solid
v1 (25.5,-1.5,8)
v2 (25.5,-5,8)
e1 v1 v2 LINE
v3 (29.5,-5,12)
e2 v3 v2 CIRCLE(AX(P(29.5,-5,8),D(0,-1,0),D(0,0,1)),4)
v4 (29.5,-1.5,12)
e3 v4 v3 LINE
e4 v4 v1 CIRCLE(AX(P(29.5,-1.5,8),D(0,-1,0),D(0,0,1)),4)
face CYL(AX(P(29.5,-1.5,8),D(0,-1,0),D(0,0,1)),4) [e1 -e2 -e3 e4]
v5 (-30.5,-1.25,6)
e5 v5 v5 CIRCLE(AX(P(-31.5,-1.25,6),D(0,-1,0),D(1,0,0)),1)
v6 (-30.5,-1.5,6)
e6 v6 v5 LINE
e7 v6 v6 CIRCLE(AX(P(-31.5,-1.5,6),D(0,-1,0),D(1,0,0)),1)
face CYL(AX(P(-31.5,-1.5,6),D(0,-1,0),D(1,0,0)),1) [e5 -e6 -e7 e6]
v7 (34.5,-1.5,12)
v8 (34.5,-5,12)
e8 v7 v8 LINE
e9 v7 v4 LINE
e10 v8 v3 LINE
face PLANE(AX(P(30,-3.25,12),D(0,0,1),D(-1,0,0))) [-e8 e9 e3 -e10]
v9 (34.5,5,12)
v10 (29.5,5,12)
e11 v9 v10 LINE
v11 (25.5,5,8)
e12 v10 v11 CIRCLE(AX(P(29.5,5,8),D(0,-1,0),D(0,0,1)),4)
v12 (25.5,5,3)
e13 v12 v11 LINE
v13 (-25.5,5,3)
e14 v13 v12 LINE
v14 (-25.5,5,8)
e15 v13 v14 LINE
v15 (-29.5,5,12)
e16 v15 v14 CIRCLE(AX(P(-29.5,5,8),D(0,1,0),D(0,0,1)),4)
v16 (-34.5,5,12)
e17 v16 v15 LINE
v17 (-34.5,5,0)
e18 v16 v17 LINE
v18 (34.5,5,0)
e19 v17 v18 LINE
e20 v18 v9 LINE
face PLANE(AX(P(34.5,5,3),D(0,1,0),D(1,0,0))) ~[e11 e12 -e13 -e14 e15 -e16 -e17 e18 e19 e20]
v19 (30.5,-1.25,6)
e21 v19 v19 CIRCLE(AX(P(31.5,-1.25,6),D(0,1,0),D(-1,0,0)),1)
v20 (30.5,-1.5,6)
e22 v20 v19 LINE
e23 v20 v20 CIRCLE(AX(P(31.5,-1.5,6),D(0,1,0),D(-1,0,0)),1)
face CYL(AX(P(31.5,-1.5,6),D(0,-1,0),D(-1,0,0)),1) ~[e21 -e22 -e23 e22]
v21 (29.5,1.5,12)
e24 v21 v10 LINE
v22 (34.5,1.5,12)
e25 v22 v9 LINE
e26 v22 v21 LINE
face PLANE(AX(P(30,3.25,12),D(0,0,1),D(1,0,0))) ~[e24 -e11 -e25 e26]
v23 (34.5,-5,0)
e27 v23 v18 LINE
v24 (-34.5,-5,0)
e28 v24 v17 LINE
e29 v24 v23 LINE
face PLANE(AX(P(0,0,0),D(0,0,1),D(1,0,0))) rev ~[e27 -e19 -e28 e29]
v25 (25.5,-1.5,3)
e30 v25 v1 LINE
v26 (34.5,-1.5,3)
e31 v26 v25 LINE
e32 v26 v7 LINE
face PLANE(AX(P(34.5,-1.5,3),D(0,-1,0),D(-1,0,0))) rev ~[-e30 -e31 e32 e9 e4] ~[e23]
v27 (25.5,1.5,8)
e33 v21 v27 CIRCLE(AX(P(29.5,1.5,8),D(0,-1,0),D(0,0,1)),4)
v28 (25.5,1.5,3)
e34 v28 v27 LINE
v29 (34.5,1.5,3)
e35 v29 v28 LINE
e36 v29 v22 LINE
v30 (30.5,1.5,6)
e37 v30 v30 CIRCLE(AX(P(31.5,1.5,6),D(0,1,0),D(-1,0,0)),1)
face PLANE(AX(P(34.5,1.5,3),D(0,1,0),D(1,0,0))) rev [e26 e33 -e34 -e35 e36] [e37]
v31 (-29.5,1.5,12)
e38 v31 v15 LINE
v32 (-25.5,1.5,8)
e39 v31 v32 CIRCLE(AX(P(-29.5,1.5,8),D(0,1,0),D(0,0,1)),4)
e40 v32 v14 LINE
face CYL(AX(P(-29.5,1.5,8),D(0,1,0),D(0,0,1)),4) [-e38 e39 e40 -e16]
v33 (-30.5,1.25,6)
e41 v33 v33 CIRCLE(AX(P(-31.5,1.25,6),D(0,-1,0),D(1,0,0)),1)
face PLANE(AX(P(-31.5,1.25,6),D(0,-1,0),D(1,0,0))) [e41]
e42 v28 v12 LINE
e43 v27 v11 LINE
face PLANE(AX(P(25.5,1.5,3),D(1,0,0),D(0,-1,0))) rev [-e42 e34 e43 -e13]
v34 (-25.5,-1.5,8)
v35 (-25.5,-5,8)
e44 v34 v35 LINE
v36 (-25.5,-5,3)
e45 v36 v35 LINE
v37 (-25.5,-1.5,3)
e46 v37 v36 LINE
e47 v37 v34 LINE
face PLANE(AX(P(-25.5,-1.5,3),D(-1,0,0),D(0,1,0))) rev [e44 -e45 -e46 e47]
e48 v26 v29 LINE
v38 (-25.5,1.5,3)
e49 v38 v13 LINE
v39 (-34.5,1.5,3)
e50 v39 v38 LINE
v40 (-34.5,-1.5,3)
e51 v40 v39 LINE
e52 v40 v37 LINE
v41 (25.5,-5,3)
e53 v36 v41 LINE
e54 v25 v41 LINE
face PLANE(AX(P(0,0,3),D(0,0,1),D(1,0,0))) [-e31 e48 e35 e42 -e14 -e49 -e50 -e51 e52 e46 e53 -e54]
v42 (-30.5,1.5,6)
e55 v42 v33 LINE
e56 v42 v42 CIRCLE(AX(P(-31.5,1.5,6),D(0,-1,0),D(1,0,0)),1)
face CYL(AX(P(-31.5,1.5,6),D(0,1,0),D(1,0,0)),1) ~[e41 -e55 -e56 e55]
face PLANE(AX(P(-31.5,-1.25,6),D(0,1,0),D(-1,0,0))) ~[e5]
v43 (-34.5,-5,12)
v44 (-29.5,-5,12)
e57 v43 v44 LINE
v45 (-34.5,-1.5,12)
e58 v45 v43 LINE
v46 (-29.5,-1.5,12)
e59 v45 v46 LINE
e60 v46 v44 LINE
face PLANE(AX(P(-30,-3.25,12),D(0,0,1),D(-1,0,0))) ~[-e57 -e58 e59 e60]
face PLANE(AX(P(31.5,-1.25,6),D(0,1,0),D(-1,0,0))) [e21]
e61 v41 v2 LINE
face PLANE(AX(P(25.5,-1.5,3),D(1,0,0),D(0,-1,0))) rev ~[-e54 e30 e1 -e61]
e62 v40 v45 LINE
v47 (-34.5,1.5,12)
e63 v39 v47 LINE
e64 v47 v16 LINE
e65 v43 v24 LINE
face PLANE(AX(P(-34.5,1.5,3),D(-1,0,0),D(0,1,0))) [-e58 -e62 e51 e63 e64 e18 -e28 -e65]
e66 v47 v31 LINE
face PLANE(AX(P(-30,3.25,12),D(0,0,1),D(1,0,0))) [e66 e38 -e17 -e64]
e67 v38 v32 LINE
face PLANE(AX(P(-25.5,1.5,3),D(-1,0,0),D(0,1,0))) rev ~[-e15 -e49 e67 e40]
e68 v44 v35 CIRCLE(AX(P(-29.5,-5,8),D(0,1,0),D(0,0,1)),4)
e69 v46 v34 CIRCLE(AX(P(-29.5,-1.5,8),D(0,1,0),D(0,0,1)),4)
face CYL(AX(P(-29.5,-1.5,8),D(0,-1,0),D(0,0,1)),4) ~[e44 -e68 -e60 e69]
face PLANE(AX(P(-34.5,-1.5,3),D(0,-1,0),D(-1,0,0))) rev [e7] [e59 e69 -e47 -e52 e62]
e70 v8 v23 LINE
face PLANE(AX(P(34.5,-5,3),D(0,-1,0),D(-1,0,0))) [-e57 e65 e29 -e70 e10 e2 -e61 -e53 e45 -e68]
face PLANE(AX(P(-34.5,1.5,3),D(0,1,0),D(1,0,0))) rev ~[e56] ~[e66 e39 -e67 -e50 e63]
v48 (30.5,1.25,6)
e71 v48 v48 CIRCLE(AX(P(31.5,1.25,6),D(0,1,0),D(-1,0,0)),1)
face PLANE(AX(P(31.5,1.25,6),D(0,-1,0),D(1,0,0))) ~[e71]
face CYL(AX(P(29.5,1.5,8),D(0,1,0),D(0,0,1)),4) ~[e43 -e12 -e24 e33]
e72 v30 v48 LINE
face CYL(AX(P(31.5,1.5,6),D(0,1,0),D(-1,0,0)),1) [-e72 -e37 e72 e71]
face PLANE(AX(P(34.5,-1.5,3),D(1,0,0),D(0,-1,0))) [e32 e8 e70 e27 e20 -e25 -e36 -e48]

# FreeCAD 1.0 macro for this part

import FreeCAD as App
import Part
import Sketcher
from FreeCAD import Vector
Q = App.Units.Quantity


def edges_at(feature, points):
    """Names of the edges that pass closest to the given points."""
    edges = feature.Shape.Edges
    near = lambda p: min(range(len(edges)), key=lambda i: edges[i].distToShape(Part.Vertex(*p))[0])
    return sorted({f"Edge{near(p) + 1}" for p in points})

doc = App.newDocument("Part")
body = doc.addObject("PartDesign::Body", "Body")

sketch1 = body.newObject("Sketcher::SketchObject", "Sketch")
sketch1.AttachmentSupport = (doc.getObject("XY_Plane"), [""])
sketch1.MapMode = "FlatFace"
sketch1.addGeometry([
    Part.LineSegment(Vector(-34, 5, 0), Vector(-34, -5, 0)),
    Part.LineSegment(Vector(-34, -5, 0), Vector(34, -5, 0)),
    Part.LineSegment(Vector(34, -5, 0), Vector(34, 5, 0)),
    Part.LineSegment(Vector(34, 5, 0), Vector(-34, 5, 0)),
], False)
sketch1.addConstraint([
    Sketcher.Constraint("Coincident", 0, 2, 1, 1),
    Sketcher.Constraint("Coincident", 1, 2, 2, 1),
    Sketcher.Constraint("Coincident", 2, 2, 3, 1),
    Sketcher.Constraint("Coincident", 3, 2, 0, 1),
    Sketcher.Constraint("Vertical", 0),
    Sketcher.Constraint("Horizontal", 1),
    Sketcher.Constraint("Vertical", 2),
    Sketcher.Constraint("Horizontal", 3),
    Sketcher.Constraint("Symmetric", 0, 2, 2, 2, -1, 1),
    Sketcher.Constraint("DistanceX", 1, 1, 1, 2, Q("69 mm")),
    Sketcher.Constraint("DistanceY", 0, 2, 0, 1, Q("10 mm")),
])
pad1 = body.newObject("PartDesign::Pad", "Pad")
pad1.Profile = sketch1
pad1.Length = 3

sketch2 = body.newObject("Sketcher::SketchObject", "Sketch001")
sketch2.AttachmentSupport = (doc.getObject("XY_Plane"), [""])
sketch2.MapMode = "FlatFace"
sketch2.AttachmentOffset = App.Placement(Vector(0, 0, 3), App.Rotation())
sketch2.addGeometry([
    Part.LineSegment(Vector(-34.5, 5, 0), Vector(-34.5, 1.5, 0)),
    Part.LineSegment(Vector(-34.5, 1.5, 0), Vector(-25.5, 1.5, 0)),
    Part.LineSegment(Vector(-25.5, 1.5, 0), Vector(-25.5, 5, 0)),
    Part.LineSegment(Vector(-25.5, 5, 0), Vector(-34.5, 5, 0)),
], False)
sketch2.addConstraint([
    Sketcher.Constraint("Coincident", 0, 2, 1, 1),
    Sketcher.Constraint("Coincident", 1, 2, 2, 1),
    Sketcher.Constraint("Coincident", 2, 2, 3, 1),
    Sketcher.Constraint("Coincident", 3, 2, 0, 1),
    Sketcher.Constraint("Vertical", 0),
    Sketcher.Constraint("Horizontal", 1),
    Sketcher.Constraint("Vertical", 2),
    Sketcher.Constraint("Horizontal", 3),
    Sketcher.Constraint("DistanceX", 1, 1, 1, 2, Q("9 mm")),
    Sketcher.Constraint("DistanceY", 0, 2, 0, 1, Q("3.5 mm")),
    Sketcher.Constraint("DistanceY", -1, 1, 2, 2, Q("5 mm")),
    Sketcher.Constraint("DistanceX", 0, 2, -1, 1, Q("34.5 mm")),
])
pad2 = body.newObject("PartDesign::Pad", "Pad001")
pad2.Profile = sketch2
pad2.Length = 9

sketch3 = body.newObject("Sketcher::SketchObject", "Sketch002")
sketch3.AttachmentSupport = (doc.getObject("XZ_Plane"), [""])
sketch3.MapMode = "FlatFace"
sketch3.AttachmentOffset = App.Placement(Vector(0, 0, -1.5), App.Rotation())
sketch3.addGeometry(Part.Circle(Vector(-31.5, 6, 0), Vector(0, 0, 1), 1), False)
sketch3.addConstraint([
    Sketcher.Constraint("Diameter", 0, Q("2 mm")),
    Sketcher.Constraint("DistanceY", -1, 1, 0, 3, Q("6 mm")),
    Sketcher.Constraint("DistanceX", 0, 3, -1, 1, Q("31.5 mm")),
])
pad3 = body.newObject("PartDesign::Pad", "Pad002")
pad3.Profile = sketch3
pad3.Length = 0.25
doc.recompute()

fillet = body.newObject("PartDesign::Fillet", "Fillet")
fillet.Base = (pad3, edges_at(pad3, [(-25.5, 3.25, 12)]))
fillet.Radius = 4
body2 = doc.addObject("PartDesign::Body", "Body001")
doc.recompute()

body2.BaseFeature = body
doc.recompute()

mirroring = doc.addObject("Part::Mirroring", "Mirroring")
mirroring.Source = body
mirroring.Base = Vector(0, 0, 0)
mirroring.Normal = Vector(1, 0, 0)
body3 = doc.addObject("PartDesign::Body", "Body002")
body3.BaseFeature = mirroring
boolean = body2.newObject("PartDesign::Boolean", "Boolean")
boolean.Type = "Fuse"
boolean.addObjects([body3])
doc.recompute()
body4 = doc.addObject("PartDesign::Body", "Body003")
doc.recompute()

body4.BaseFeature = body2
doc.recompute()

mirroring2 = doc.addObject("Part::Mirroring", "Mirroring001")
mirroring2.Source = body2
mirroring2.Base = Vector(0, 0, 0)
mirroring2.Normal = Vector(0, -1, 0)
body5 = doc.addObject("PartDesign::Body", "Body004")
body5.BaseFeature = mirroring2
boolean2 = body4.newObject("PartDesign::Boolean", "Boolean001")
boolean2.Type = "Fuse"
boolean2.addObjects([body5])
doc.recompute()
mirroring.Visibility = False
mirroring2.Visibility = False

doc.recompute()
